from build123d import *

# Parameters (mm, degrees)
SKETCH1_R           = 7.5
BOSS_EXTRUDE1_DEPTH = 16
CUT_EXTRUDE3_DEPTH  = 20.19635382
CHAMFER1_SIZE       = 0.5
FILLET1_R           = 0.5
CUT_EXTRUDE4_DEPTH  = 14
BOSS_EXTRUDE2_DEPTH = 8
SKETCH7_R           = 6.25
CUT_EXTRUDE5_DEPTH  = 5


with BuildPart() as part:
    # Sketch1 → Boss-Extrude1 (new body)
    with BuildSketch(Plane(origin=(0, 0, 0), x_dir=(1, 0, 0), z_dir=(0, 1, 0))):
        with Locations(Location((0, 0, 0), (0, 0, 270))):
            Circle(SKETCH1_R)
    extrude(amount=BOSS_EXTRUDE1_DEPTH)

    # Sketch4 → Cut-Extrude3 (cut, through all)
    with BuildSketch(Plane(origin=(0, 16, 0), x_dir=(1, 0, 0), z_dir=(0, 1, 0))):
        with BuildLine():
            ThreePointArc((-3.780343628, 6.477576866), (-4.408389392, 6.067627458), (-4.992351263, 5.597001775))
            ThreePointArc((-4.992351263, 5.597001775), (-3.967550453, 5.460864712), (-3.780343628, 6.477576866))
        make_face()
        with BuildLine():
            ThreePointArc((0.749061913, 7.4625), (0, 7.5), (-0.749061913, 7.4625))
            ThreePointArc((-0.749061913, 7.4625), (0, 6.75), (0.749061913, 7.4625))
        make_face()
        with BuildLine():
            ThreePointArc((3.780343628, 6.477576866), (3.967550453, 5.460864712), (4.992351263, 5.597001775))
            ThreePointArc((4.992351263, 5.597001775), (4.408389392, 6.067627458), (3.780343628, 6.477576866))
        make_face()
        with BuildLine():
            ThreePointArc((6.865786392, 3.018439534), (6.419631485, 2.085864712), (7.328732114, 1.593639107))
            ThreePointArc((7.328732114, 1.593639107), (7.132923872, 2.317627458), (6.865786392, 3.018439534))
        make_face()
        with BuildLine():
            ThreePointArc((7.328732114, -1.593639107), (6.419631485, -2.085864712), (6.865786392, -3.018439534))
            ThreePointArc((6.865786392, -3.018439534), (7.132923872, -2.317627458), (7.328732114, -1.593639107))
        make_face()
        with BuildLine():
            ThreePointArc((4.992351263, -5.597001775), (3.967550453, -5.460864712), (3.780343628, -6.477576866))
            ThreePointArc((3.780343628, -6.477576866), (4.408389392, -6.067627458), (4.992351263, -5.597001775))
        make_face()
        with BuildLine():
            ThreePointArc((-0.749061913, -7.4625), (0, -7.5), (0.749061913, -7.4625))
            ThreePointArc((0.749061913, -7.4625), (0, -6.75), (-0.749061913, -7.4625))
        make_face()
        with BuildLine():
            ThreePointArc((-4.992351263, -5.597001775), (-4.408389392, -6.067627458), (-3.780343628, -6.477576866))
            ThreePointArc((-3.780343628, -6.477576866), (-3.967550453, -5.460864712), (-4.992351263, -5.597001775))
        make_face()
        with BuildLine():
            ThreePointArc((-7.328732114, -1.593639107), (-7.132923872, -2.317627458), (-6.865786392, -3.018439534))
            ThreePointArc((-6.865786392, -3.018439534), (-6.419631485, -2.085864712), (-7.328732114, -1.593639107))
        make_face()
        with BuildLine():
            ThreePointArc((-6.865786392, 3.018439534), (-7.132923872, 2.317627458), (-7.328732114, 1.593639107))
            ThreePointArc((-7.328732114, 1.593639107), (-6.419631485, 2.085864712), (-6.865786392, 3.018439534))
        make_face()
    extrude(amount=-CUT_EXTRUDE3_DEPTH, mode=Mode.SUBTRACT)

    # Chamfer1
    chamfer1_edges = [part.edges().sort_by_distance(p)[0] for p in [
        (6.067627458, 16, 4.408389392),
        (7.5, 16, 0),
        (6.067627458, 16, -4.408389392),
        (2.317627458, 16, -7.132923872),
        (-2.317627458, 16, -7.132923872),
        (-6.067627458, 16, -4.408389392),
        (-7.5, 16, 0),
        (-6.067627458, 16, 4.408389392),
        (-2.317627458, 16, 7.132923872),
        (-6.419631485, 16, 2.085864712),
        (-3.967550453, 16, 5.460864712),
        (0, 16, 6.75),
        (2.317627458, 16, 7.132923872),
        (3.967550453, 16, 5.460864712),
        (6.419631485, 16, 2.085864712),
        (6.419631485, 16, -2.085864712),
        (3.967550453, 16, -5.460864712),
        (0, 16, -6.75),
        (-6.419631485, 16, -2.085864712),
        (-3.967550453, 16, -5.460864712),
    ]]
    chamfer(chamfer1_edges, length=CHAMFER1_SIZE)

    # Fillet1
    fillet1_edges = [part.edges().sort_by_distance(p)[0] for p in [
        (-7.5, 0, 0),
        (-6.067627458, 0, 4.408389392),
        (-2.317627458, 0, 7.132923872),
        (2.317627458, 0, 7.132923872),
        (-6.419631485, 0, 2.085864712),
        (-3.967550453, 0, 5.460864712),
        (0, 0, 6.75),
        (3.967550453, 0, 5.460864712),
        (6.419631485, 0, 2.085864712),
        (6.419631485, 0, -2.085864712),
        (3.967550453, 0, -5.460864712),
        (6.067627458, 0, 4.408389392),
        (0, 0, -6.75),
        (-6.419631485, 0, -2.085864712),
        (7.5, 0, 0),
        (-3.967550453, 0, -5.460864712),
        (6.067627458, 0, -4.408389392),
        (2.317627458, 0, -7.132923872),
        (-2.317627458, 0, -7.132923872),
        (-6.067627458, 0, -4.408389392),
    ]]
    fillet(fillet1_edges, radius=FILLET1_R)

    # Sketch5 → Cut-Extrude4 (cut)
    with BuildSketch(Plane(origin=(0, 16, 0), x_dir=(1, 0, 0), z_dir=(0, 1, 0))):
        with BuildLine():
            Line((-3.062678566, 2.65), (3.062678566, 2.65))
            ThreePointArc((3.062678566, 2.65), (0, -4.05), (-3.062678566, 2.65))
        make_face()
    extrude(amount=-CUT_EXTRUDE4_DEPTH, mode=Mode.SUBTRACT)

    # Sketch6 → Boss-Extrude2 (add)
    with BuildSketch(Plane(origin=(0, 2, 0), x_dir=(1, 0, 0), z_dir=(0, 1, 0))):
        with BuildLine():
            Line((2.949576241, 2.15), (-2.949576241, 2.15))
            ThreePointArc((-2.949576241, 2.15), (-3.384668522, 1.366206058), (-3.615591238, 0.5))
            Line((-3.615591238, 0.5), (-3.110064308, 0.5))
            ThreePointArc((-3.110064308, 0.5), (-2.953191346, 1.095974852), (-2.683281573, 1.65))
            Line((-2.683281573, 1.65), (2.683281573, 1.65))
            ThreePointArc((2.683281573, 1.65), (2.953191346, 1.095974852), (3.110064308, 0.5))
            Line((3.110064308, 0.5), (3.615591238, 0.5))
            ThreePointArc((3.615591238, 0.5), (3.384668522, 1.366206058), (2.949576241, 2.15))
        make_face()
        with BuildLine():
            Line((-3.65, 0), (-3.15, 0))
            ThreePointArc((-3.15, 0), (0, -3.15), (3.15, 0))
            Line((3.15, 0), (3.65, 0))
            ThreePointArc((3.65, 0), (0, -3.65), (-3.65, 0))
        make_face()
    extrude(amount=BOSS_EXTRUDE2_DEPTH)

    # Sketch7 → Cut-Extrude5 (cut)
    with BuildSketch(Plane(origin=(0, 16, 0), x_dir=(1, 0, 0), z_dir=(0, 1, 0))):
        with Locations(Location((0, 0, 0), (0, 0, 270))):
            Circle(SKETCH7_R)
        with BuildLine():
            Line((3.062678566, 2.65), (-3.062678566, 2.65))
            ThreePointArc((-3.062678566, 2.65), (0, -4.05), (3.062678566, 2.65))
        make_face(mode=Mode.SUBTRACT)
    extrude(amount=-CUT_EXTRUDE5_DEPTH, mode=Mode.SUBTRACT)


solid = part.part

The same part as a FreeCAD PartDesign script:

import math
import FreeCAD as App
import Part
import Sketcher

V = App.Vector


def edges_at(feature, points):
    """Names of the edges that pass closest to the given points."""
    edges = feature.Shape.Edges
    near = lambda p: min(range(len(edges)), key=lambda i: edges[i].distToShape(Part.Vertex(*p))[0])
    return sorted({f"Edge{near(p) + 1}" for p in points})

doc = App.newDocument("Part")
body = doc.addObject("PartDesign::Body", "Body")

sketch1 = body.newObject("Sketcher::SketchObject", "Sketch")
sketch1.AttachmentSupport = (doc.getObject("XZ_Plane"), [""])
sketch1.MapMode = "FlatFace"
sketch1.addGeometry(Part.Circle(V(0, 0, 0), V(0, 0, 1), 8), False)
sketch1.addConstraint(Sketcher.Constraint("Coincident", 0, 3, -1, 1))
sketch1.addConstraint(Sketcher.Constraint("Diameter", 0, 15.0))
pad1 = body.newObject("PartDesign::Pad", "Pad")
pad1.Profile = sketch1
pad1.Length = 16
pad1.Reversed = True

sketch2 = body.newObject("Sketcher::SketchObject", "Sketch001")
sketch2.AttachmentSupport = (doc.getObject("XZ_Plane"), [""])
sketch2.MapMode = "FlatFace"
sketch2.AttachmentOffset = App.Placement(V(0, 0, -16), App.Rotation())
sketch2.addGeometry(Part.ArcOfCircle(Part.Circle(V(0, 0, 0), V(0, 0, 1), 7.5), math.radians(-131.73), math.radians(-120.27)), False)
sketch2.addGeometry(Part.ArcOfCircle(Part.Circle(V(-4.4, -6.1, 0), V(0, 0, 1), 0.8), math.radians(-33), math.radians(141)), False)
sketch2.addGeometry(Part.ArcOfCircle(Part.Circle(V(0, 0, 0), V(0, 0, 1), 7.5), math.radians(-95.73), math.radians(-84.27)), False)
sketch2.addGeometry(Part.ArcOfCircle(Part.Circle(V(0, -7.5, 0), V(0, 0, 1), 0.8), math.radians(3), math.radians(177)), False)
sketch2.addGeometry(Part.ArcOfCircle(Part.Circle(V(4.4, -6.1, 0), V(0, 0, 1), 0.8), math.radians(39), math.radians(213)), False)
sketch2.addGeometry(Part.ArcOfCircle(Part.Circle(V(0, 0, 0), V(0, 0, 1), 7.5), math.radians(-59.73), math.radians(-48.27)), False)
sketch2.addGeometry(Part.ArcOfCircle(Part.Circle(V(7.1, -2.3, 0), V(0, 0, 1), 0.8), math.radians(75), math.radians(249)), False)
sketch2.addGeometry(Part.ArcOfCircle(Part.Circle(V(0, 0, 0), V(0, 0, 1), 7.5), math.radians(-23.73), math.radians(-12.27)), False)
sketch2.addGeometry(Part.ArcOfCircle(Part.Circle(V(7.1, 2.3, 0), V(0, 0, 1), 0.8), math.radians(111), math.radians(285)), False)
sketch2.addGeometry(Part.ArcOfCircle(Part.Circle(V(0, 0, 0), V(0, 0, 1), 7.5), math.radians(12.27), math.radians(23.73)), False)
sketch2.addGeometry(Part.ArcOfCircle(Part.Circle(V(4.4, 6.1, 0), V(0, 0, 1), 0.8), math.radians(147), math.radians(321)), False)
sketch2.addGeometry(Part.ArcOfCircle(Part.Circle(V(0, 0, 0), V(0, 0, 1), 7.5), math.radians(48.27), math.radians(59.73)), False)
sketch2.addGeometry(Part.ArcOfCircle(Part.Circle(V(0, 0, 0), V(0, 0, 1), 7.5), math.radians(84.27), math.radians(95.73)), False)
sketch2.addGeometry(Part.ArcOfCircle(Part.Circle(V(0, 7.5, 0), V(0, 0, 1), 0.8), math.radians(-177), math.radians(-3)), False)
sketch2.addGeometry(Part.ArcOfCircle(Part.Circle(V(0, 0, 0), V(0, 0, 1), 7.5), math.radians(120.27), math.radians(131.73)), False)
sketch2.addGeometry(Part.ArcOfCircle(Part.Circle(V(-4.4, 6.1, 0), V(0, 0, 1), 0.8), math.radians(-141), math.radians(33)), False)
sketch2.addGeometry(Part.ArcOfCircle(Part.Circle(V(0, 0, 0), V(0, 0, 1), 7.5), math.radians(156.27), math.radians(167.73)), False)
sketch2.addGeometry(Part.ArcOfCircle(Part.Circle(V(-7.1, 2.3, 0), V(0, 0, 1), 0.8), math.radians(-105), math.radians(69)), False)
sketch2.addGeometry(Part.ArcOfCircle(Part.Circle(V(0, 0, 0), V(0, 0, 1), 7.5), math.radians(-167.73), math.radians(-156.27)), False)
sketch2.addGeometry(Part.ArcOfCircle(Part.Circle(V(-7.1, -2.3, 0), V(0, 0, 1), 0.8), math.radians(-69), math.radians(105)), False)
sketch2.addConstraint(Sketcher.Constraint("Coincident", 0, 1, 1, 2))
sketch2.addConstraint(Sketcher.Constraint("Coincident", 1, 1, 0, 2))
sketch2.addConstraint(Sketcher.Constraint("Coincident", 2, 1, 3, 2))
sketch2.addConstraint(Sketcher.Constraint("Coincident", 3, 1, 2, 2))
sketch2.addConstraint(Sketcher.Constraint("Coincident", 4, 1, 5, 2))
sketch2.addConstraint(Sketcher.Constraint("Coincident", 5, 1, 4, 2))
sketch2.addConstraint(Sketcher.Constraint("Coincident", 6, 1, 7, 2))
sketch2.addConstraint(Sketcher.Constraint("Coincident", 7, 1, 6, 2))
sketch2.addConstraint(Sketcher.Constraint("Coincident", 8, 1, 9, 2))
sketch2.addConstraint(Sketcher.Constraint("Coincident", 9, 1, 8, 2))
sketch2.addConstraint(Sketcher.Constraint("Coincident", 10, 1, 11, 2))
sketch2.addConstraint(Sketcher.Constraint("Coincident", 11, 1, 10, 2))
sketch2.addConstraint(Sketcher.Constraint("Coincident", 12, 1, 13, 2))
sketch2.addConstraint(Sketcher.Constraint("Coincident", 13, 1, 12, 2))
sketch2.addConstraint(Sketcher.Constraint("Coincident", 14, 1, 15, 2))
sketch2.addConstraint(Sketcher.Constraint("Coincident", 15, 1, 14, 2))
sketch2.addConstraint(Sketcher.Constraint("Coincident", 16, 1, 17, 2))
sketch2.addConstraint(Sketcher.Constraint("Coincident", 17, 1, 16, 2))
sketch2.addConstraint(Sketcher.Constraint("Coincident", 18, 1, 19, 2))
sketch2.addConstraint(Sketcher.Constraint("Coincident", 19, 1, 18, 2))
sketch2.addConstraint(Sketcher.Constraint("Coincident", 0, 3, -1, 1))
sketch2.addConstraint(Sketcher.Constraint("Coincident", 2, 3, -1, 1))
sketch2.addConstraint(Sketcher.Constraint("Coincident", 5, 3, -1, 1))
sketch2.addConstraint(Sketcher.Constraint("Coincident", 7, 3, -1, 1))
sketch2.addConstraint(Sketcher.Constraint("Coincident", 9, 3, -1, 1))
sketch2.addConstraint(Sketcher.Constraint("Coincident", 11, 3, -1, 1))
sketch2.addConstraint(Sketcher.Constraint("Coincident", 12, 3, -1, 1))
sketch2.addConstraint(Sketcher.Constraint("Coincident", 14, 3, -1, 1))
sketch2.addConstraint(Sketcher.Constraint("Coincident", 16, 3, -1, 1))
sketch2.addConstraint(Sketcher.Constraint("Coincident", 18, 3, -1, 1))
sketch2.addConstraint(Sketcher.Constraint("Equal", 0, 2))
sketch2.addConstraint(Sketcher.Constraint("Equal", 1, 3))
sketch2.addConstraint(Sketcher.Constraint("Equal", 3, 4))
sketch2.addConstraint(Sketcher.Constraint("Equal", 2, 5))
sketch2.addConstraint(Sketcher.Constraint("Equal", 4, 6))
sketch2.addConstraint(Sketcher.Constraint("Equal", 5, 7))
sketch2.addConstraint(Sketcher.Constraint("Equal", 6, 8))
sketch2.addConstraint(Sketcher.Constraint("Equal", 7, 9))
sketch2.addConstraint(Sketcher.Constraint("Equal", 8, 10))
sketch2.addConstraint(Sketcher.Constraint("Equal", 9, 11))
sketch2.addConstraint(Sketcher.Constraint("Equal", 11, 12))
sketch2.addConstraint(Sketcher.Constraint("Equal", 10, 13))
sketch2.addConstraint(Sketcher.Constraint("Equal", 12, 14))
sketch2.addConstraint(Sketcher.Constraint("Equal", 13, 15))
sketch2.addConstraint(Sketcher.Constraint("Equal", 14, 16))
sketch2.addConstraint(Sketcher.Constraint("Equal", 15, 17))
sketch2.addConstraint(Sketcher.Constraint("Equal", 16, 18))
sketch2.addConstraint(Sketcher.Constraint("Equal", 17, 19))
sketch2.addConstraint(Sketcher.Constraint("Symmetric", 1, 3, 10, 3, -1, 1))
sketch2.addConstraint(Sketcher.Constraint("Symmetric", 3, 3, 13, 3, -1, 1))
sketch2.addConstraint(Sketcher.Constraint("Symmetric", 4, 3, 15, 3, -1, 1))
sketch2.addConstraint(Sketcher.Constraint("Symmetric", 6, 3, 17, 3, -1, 1))
sketch2.addConstraint(Sketcher.Constraint("Symmetric", 8, 3, 19, 3, -1, 1))
sketch2.addConstraint(Sketcher.Constraint("Symmetric", 1, 3, 4, 3, -2))
sketch2.addConstraint(Sketcher.Constraint("Symmetric", 8, 3, 17, 3, -2))
sketch2.addConstraint(Sketcher.Constraint("PointOnObject", 3, 3, -2))
sketch2.addConstraint(Sketcher.Constraint("Radius", 0, 7.5))
sketch2.addConstraint(Sketcher.Constraint("Radius", 1, 0.75))
sketch2.addConstraint(Sketcher.Constraint("DistanceY", 3, 3, -1, 1, 7.5))
sketch2.addConstraint(Sketcher.Constraint("DistanceY", 4, 3, 6, 3, 3.75))
sketch2.addConstraint(Sketcher.Constraint("DistanceY", 0, 1, -1, 1, 5.597002))
sketch2.addConstraint(Sketcher.Constraint("DistanceY", 7, 1, 6, 1, 1.4248))
sketch2.addConstraint(Sketcher.Constraint("DistanceX", 1, 3, -1, 1, 4.408389))
pocket1 = body.newObject("PartDesign::Pocket", "Pocket")
pocket1.Profile = sketch2
pocket1.Type = "ThroughAll"
pocket1.Reversed = True
doc.recompute()

chamfer = body.newObject("PartDesign::Chamfer", "Chamfer")
chamfer.Base = (pocket1, edges_at(pocket1, [
    (6.068, 16, 4.408),
    (7.5, 16, 0),
    (6.068, 16, -4.408),
    (2.318, 16, -7.133),
    (-2.318, 16, -7.133),
    (-6.068, 16, -4.408),
    (-7.5, 16, 0),
    (-6.068, 16, 4.408),
    (-2.318, 16, 7.133),
    (-6.42, 16, 2.086),
    (-3.968, 16, 5.461),
    (0, 16, 6.75),
    (2.318, 16, 7.133),
    (3.968, 16, 5.461),
    (6.42, 16, 2.086),
    (6.42, 16, -2.086),
    (3.968, 16, -5.461),
    (0, 16, -6.75),
    (-6.42, 16, -2.086),
    (-3.968, 16, -5.461),
]))
chamfer.Size = 0.5
doc.recompute()

fillet = body.newObject("PartDesign::Fillet", "Fillet")
fillet.Base = (chamfer, edges_at(chamfer, [
    (-7.5, 0, 0),
    (-6.068, 0, 4.408),
    (-2.318, 0, 7.133),
    (2.318, 0, 7.133),
    (-6.42, 0, 2.086),
    (-3.968, 0, 5.461),
    (0, 0, 6.75),
    (3.968, 0, 5.461),
    (6.42, 0, 2.086),
    (6.42, 0, -2.086),
    (3.968, 0, -5.461),
    (6.068, 0, 4.408),
    (0, 0, -6.75),
    (-6.42, 0, -2.086),
    (7.5, 0, 0),
    (-3.968, 0, -5.461),
    (6.068, 0, -4.408),
    (2.318, 0, -7.133),
    (-2.318, 0, -7.133),
    (-6.068, 0, -4.408),
]))
fillet.Radius = 0.5

sketch3 = body.newObject("Sketcher::SketchObject", "Sketch002")
sketch3.AttachmentSupport = (doc.getObject("XZ_Plane"), [""])
sketch3.MapMode = "FlatFace"
sketch3.AttachmentOffset = App.Placement(V(0, 0, -16), App.Rotation())
sketch3.addGeometry(Part.LineSegment(V(3.1, -2.6, 0), V(-3.1, -2.6, 0)), False)
sketch3.addGeometry(Part.ArcOfCircle(Part.Circle(V(0, 0, 0), V(0, 0, 1), 4), math.radians(-41), math.radians(221)), False)
sketch3.addConstraint(Sketcher.Constraint("Coincident", 0, 1, 1, 1))
sketch3.addConstraint(Sketcher.Constraint("Coincident", 1, 2, 0, 2))
sketch3.addConstraint(Sketcher.Constraint("Horizontal", 0))
sketch3.addConstraint(Sketcher.Constraint("Coincident", 1, 3, -1, 1))
sketch3.addConstraint(Sketcher.Constraint("Radius", 1, 4.05))
sketch3.addConstraint(Sketcher.Constraint("DistanceY", 0, 1, -1, 1, 2.65))
pocket2 = body.newObject("PartDesign::Pocket", "Pocket001")
pocket2.Profile = sketch3
pocket2.Length = 14
pocket2.Reversed = True

sketch4 = body.newObject("Sketcher::SketchObject", "Sketch003")
sketch4.AttachmentSupport = (doc.getObject("XZ_Plane"), [""])
sketch4.MapMode = "FlatFace"
sketch4.AttachmentOffset = App.Placement(V(0, 0, -2), App.Rotation())
sketch4.addGeometry(Part.LineSegment(V(2.9, -2.1, 0), V(-2.9, -2.1, 0)), False)
sketch4.addGeometry(Part.ArcOfCircle(Part.Circle(V(0, 0, 0), V(0, 0, 1), 3.7), math.radians(-172), math.radians(-144)), False)
sketch4.addGeometry(Part.LineSegment(V(-3.6, -0.5, 0), V(-3.1, -0.5, 0)), False)
sketch4.addGeometry(Part.ArcOfCircle(Part.Circle(V(0, 0, 0), V(0, 0, 1), 3.1), math.radians(-171), math.radians(-148)), False)
sketch4.addGeometry(Part.LineSegment(V(-2.7, -1.6, 0), V(2.7, -1.6, 0)), False)
sketch4.addGeometry(Part.ArcOfCircle(Part.Circle(V(0, 0, 0), V(0, 0, 1), 3.1), math.radians(-32), math.radians(-9)), False)
sketch4.addGeometry(Part.LineSegment(V(3.1, -0.5, 0), V(3.6, -0.5, 0)), False)
sketch4.addGeometry(Part.ArcOfCircle(Part.Circle(V(0, 0, 0), V(0, 0, 1), 3.7), math.radians(-36), math.radians(-8)), False)
sketch4.addGeometry(Part.LineSegment(V(-3.1, 0, 0), V(-3.6, 0, 0)), False)
sketch4.addGeometry(Part.ArcOfCircle(Part.Circle(V(0, 0, 0), V(0, 0, 1), 3.6), math.radians(0), math.radians(180)), False)
sketch4.addGeometry(Part.LineSegment(V(3.6, 0, 0), V(3.1, 0, 0)), False)
sketch4.addGeometry(Part.ArcOfCircle(Part.Circle(V(0, 0, 0), V(0, 0, 1), 3.1), math.radians(0), math.radians(180)), False)
sketch4.addConstraint(Sketcher.Constraint("Coincident", 0, 2, 1, 2))
sketch4.addConstraint(Sketcher.Constraint("Coincident", 1, 1, 2, 1))
sketch4.addConstraint(Sketcher.Constraint("Coincident", 2, 2, 3, 1))
sketch4.addConstraint(Sketcher.Constraint("Coincident", 3, 2, 4, 1))
sketch4.addConstraint(Sketcher.Constraint("Coincident", 4, 2, 5, 1))
sketch4.addConstraint(Sketcher.Constraint("Coincident", 5, 2, 6, 1))
sketch4.addConstraint(Sketcher.Constraint("Coincident", 6, 2, 7, 2))
sketch4.addConstraint(Sketcher.Constraint("Coincident", 7, 1, 0, 1))
sketch4.addConstraint(Sketcher.Constraint("Coincident", 8, 2, 9, 2))
sketch4.addConstraint(Sketcher.Constraint("Coincident", 9, 1, 10, 1))
sketch4.addConstraint(Sketcher.Constraint("Coincident", 10, 2, 11, 1))
sketch4.addConstraint(Sketcher.Constraint("Coincident", 11, 2, 8, 1))
sketch4.addConstraint(Sketcher.Constraint("Horizontal", 0))
sketch4.addConstraint(Sketcher.Constraint("Horizontal", 2))
sketch4.addConstraint(Sketcher.Constraint("Horizontal", 4))
sketch4.addConstraint(Sketcher.Constraint("Horizontal", 6))
sketch4.addConstraint(Sketcher.Constraint("Horizontal", 8))
sketch4.addConstraint(Sketcher.Constraint("Horizontal", 10))
sketch4.addConstraint(Sketcher.Constraint("Coincident", 1, 3, -1, 1))
sketch4.addConstraint(Sketcher.Constraint("Coincident", 3, 3, -1, 1))
sketch4.addConstraint(Sketcher.Constraint("Coincident", 5, 3, -1, 1))
sketch4.addConstraint(Sketcher.Constraint("Coincident", 7, 3, -1, 1))
sketch4.addConstraint(Sketcher.Constraint("Coincident", 9, 3, -1, 1))
sketch4.addConstraint(Sketcher.Constraint("Coincident", 11, 3, -1, 1))
sketch4.addConstraint(Sketcher.Constraint("Equal", 3, 5))
sketch4.addConstraint(Sketcher.Constraint("Equal", 1, 7))
sketch4.addConstraint(Sketcher.Constraint("Equal", 7, 9))
sketch4.addConstraint(Sketcher.Constraint("Equal", 5, 11))
sketch4.addConstraint(Sketcher.Constraint("PointOnObject", 8, 2, -1))
sketch4.addConstraint(Sketcher.Constraint("PointOnObject", 9, 1, -1))
sketch4.addConstraint(Sketcher.Constraint("Horizontal", 2, 2, 5, 2))
sketch4.addConstraint(Sketcher.Constraint("Radius", 1, 3.65))
sketch4.addConstraint(Sketcher.Constraint("Radius", 3, 3.15))
sketch4.addConstraint(Sketcher.Constraint("DistanceY", 1, 1, -1, 1, 0.5))
sketch4.addConstraint(Sketcher.Constraint("DistanceY", 0, 2, 3, 2, 0.5))
sketch4.addConstraint(Sketcher.Constraint("DistanceY", 0, 2, -1, 1, 2.15))
pad2 = body.newObject("PartDesign::Pad", "Pad001")
pad2.Profile = sketch4
pad2.Length = 8
pad2.Reversed = True

sketch5 = body.newObject("Sketcher::SketchObject", "Sketch004")
sketch5.AttachmentSupport = (doc.getObject("XZ_Plane"), [""])
sketch5.MapMode = "FlatFace"
sketch5.AttachmentOffset = App.Placement(V(0, 0, -16), App.Rotation())
sketch5.addGeometry(Part.Circle(V(0, 0, 0), V(0, 0, 1), 6.2), False)
sketch5.addGeometry(Part.LineSegment(V(-3.1, -2.6, 0), V(3.1, -2.6, 0)), False)
sketch5.addGeometry(Part.ArcOfCircle(Part.Circle(V(0, 0, 0), V(0, 0, 1), 4), math.radians(-41), math.radians(221)), False)
sketch5.addConstraint(Sketcher.Constraint("Coincident", 1, 1, 2, 2))
sketch5.addConstraint(Sketcher.Constraint("Coincident", 2, 1, 1, 2))
sketch5.addConstraint(Sketcher.Constraint("Horizontal", 1))
sketch5.addConstraint(Sketcher.Constraint("Coincident", 0, 3, -1, 1))
sketch5.addConstraint(Sketcher.Constraint("Coincident", 2, 3, -1, 1))
sketch5.addConstraint(Sketcher.Constraint("Diameter", 0, 12.5))
sketch5.addConstraint(Sketcher.Constraint("Radius", 2, 4.05))
sketch5.addConstraint(Sketcher.Constraint("DistanceY", 1, 1, -1, 1, 2.65))
pocket3 = body.newObject("PartDesign::Pocket", "Pocket002")
pocket3.Profile = sketch5
pocket3.Length = 5
pocket3.Reversed = True

doc.recompute()
